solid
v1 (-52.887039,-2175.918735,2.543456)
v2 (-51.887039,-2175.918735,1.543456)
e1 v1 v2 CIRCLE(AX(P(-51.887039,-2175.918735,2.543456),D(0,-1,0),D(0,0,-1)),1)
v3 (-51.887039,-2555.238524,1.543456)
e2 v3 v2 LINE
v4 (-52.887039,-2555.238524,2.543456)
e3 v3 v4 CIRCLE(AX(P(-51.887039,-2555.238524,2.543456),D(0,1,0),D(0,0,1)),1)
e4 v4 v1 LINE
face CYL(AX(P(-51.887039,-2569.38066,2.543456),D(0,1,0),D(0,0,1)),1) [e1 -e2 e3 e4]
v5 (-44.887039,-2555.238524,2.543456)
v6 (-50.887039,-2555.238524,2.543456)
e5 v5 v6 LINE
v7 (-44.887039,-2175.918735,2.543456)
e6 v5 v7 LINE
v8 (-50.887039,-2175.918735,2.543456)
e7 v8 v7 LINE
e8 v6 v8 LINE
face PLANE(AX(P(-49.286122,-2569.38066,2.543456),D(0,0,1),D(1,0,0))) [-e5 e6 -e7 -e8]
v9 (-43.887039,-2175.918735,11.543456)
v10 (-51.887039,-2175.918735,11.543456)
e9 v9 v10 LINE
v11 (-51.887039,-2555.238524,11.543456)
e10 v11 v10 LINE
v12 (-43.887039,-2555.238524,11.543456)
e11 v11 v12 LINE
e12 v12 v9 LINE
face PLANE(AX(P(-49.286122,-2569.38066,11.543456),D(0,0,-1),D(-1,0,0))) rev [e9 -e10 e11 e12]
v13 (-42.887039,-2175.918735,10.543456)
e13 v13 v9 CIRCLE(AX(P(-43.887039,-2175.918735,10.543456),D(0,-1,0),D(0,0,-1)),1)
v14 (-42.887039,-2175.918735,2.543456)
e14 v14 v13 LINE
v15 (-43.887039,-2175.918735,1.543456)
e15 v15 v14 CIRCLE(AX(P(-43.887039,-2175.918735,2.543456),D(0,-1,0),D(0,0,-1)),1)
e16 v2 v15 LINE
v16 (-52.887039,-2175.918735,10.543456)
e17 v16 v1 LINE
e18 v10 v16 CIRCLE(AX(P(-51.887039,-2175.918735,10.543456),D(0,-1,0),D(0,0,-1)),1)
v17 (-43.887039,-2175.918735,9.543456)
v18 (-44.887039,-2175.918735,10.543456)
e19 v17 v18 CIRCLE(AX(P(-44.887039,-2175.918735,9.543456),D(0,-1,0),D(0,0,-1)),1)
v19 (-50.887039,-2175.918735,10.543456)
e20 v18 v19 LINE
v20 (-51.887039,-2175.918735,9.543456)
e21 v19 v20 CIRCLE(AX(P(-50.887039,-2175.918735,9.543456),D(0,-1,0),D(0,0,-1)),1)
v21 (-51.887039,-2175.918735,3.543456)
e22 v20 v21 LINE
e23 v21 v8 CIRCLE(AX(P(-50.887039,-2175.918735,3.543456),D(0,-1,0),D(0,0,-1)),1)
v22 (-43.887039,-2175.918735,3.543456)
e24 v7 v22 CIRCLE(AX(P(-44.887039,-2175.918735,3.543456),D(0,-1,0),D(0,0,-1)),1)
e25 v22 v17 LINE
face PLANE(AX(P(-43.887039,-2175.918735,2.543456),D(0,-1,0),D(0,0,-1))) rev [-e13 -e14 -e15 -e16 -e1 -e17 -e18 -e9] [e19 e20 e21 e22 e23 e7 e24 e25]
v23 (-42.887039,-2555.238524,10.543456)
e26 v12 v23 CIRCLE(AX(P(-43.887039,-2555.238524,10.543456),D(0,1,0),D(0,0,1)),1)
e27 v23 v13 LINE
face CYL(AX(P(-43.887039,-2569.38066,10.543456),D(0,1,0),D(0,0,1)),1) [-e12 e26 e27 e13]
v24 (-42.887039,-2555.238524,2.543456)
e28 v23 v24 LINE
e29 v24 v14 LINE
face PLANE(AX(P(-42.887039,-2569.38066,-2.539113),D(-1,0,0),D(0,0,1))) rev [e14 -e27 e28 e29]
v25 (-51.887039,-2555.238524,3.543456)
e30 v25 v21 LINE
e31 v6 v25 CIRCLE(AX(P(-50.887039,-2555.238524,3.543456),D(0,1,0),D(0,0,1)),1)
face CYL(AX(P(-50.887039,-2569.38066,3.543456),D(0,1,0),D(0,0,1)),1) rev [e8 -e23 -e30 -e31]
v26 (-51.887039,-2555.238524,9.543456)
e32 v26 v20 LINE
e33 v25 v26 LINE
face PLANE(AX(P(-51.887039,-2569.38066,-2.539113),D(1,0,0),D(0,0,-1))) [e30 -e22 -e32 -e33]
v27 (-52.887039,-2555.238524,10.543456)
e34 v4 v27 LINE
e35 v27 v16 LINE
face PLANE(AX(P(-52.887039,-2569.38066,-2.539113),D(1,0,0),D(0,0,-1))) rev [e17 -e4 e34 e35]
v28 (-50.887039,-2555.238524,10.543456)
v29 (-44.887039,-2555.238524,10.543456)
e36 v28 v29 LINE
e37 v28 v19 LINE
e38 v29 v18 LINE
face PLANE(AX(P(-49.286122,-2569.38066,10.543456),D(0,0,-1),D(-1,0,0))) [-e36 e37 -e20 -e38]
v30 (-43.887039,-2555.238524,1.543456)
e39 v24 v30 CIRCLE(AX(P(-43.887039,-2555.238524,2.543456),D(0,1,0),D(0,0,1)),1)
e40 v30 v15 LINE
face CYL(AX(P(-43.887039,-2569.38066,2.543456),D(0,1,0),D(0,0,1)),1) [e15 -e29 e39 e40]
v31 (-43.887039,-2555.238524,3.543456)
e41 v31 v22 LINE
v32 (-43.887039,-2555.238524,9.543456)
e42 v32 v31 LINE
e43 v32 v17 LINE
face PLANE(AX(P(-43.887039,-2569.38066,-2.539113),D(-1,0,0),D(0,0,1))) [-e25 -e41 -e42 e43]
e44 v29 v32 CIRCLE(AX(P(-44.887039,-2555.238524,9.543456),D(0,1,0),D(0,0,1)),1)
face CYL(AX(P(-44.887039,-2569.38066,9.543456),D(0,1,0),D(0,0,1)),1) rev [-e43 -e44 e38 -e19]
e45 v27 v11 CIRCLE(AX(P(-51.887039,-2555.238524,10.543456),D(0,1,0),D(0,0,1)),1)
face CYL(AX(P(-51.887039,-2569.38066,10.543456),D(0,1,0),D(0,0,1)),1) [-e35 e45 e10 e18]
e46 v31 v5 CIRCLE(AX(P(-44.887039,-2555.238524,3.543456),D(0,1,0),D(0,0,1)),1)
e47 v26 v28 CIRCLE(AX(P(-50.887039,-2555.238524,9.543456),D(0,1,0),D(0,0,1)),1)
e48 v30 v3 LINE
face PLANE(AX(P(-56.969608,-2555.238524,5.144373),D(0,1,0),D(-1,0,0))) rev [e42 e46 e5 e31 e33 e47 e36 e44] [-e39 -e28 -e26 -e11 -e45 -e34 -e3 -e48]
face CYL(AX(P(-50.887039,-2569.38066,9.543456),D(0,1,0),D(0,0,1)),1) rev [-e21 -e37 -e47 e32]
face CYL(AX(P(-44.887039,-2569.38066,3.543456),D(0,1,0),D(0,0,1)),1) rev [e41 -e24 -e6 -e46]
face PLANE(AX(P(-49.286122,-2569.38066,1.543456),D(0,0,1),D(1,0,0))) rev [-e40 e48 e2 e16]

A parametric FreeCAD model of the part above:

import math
import FreeCAD as App
import Part
import Sketcher
from FreeCAD import Vector

doc = App.newDocument("Part")
params = doc.addObject("Spreadsheet::Sheet", "Params")
for row, (alias, value) in enumerate([
    ("sketch1_radius", "1 mm"),
    ("sketch1_width", "8 mm"),
    ("pad1_length", "379.319789 mm"),
], start=1):
    params.set(f"A{row}", alias)
    params.set(f"B{row}", "=" + value)
    params.setAlias(f"B{row}", alias)

body = doc.addObject("PartDesign::Body", "Body")

sketch1 = body.newObject("Sketcher::SketchObject", "Sketch")
sketch1.AttachmentSupport = (doc.getObject("XZ_Plane"), [""])
sketch1.MapMode = "FlatFace"
sketch1.AttachmentOffset = App.Placement(Vector(0, 0, 2175.918735), App.Rotation())
sketch1.addGeometry([
    Part.LineSegment(Vector(-43.9, 1.5, 0), Vector(-51.9, 1.5, 0)),
    Part.ArcOfCircle(Part.Circle(Vector(-51.9, 2.5, 0), Vector(0, 0, 1), 1), math.radians(-180), math.radians(-90)),
    Part.LineSegment(Vector(-52.9, 2.5, 0), Vector(-52.9, 10.5, 0)),
    Part.ArcOfCircle(Part.Circle(Vector(-51.9, 10.5, 0), Vector(0, 0, 1), 1), math.radians(90), math.radians(180)),
    Part.LineSegment(Vector(-51.9, 11.5, 0), Vector(-43.9, 11.5, 0)),
    Part.ArcOfCircle(Part.Circle(Vector(-43.9, 10.5, 0), Vector(0, 0, 1), 1), math.radians(0), math.radians(90)),
    Part.LineSegment(Vector(-42.9, 10.5, 0), Vector(-42.9, 2.5, 0)),
    Part.ArcOfCircle(Part.Circle(Vector(-43.9, 2.5, 0), Vector(0, 0, 1), 1), math.radians(-90), math.radians(0)),
    Part.LineSegment(Vector(-50.9, 2.5, 0), Vector(-44.9, 2.5, 0)),
    Part.ArcOfCircle(Part.Circle(Vector(-44.9, 3.5, 0), Vector(0, 0, 1), 1), math.radians(-90), math.radians(0)),
    Part.LineSegment(Vector(-43.9, 3.5, 0), Vector(-43.9, 9.5, 0)),
    Part.ArcOfCircle(Part.Circle(Vector(-44.9, 9.5, 0), Vector(0, 0, 1), 1), math.radians(0), math.radians(90)),
    Part.LineSegment(Vector(-44.9, 10.5, 0), Vector(-50.9, 10.5, 0)),
    Part.ArcOfCircle(Part.Circle(Vector(-50.9, 9.5, 0), Vector(0, 0, 1), 1), math.radians(90), math.radians(180)),
    Part.LineSegment(Vector(-51.9, 9.5, 0), Vector(-51.9, 3.5, 0)),
    Part.ArcOfCircle(Part.Circle(Vector(-50.9, 3.5, 0), Vector(0, 0, 1), 1), math.radians(-180), math.radians(-90)),
], False)
sketch1.addConstraint([
    Sketcher.Constraint("Tangent", 0, 2, 1, 2),
    Sketcher.Constraint("Tangent", 1, 1, 2, 1),
    Sketcher.Constraint("Tangent", 2, 2, 3, 2),
    Sketcher.Constraint("Tangent", 3, 1, 4, 1),
    Sketcher.Constraint("Tangent", 4, 2, 5, 2),
    Sketcher.Constraint("Tangent", 5, 1, 6, 1),
    Sketcher.Constraint("Tangent", 6, 2, 7, 2),
    Sketcher.Constraint("Tangent", 7, 1, 0, 1),
    Sketcher.Constraint("Tangent", 8, 2, 9, 1),
    Sketcher.Constraint("Tangent", 9, 2, 10, 1),
    Sketcher.Constraint("Tangent", 10, 2, 11, 1),
    Sketcher.Constraint("Tangent", 11, 2, 12, 1),
    Sketcher.Constraint("Tangent", 12, 2, 13, 1),
    Sketcher.Constraint("Tangent", 13, 2, 14, 1),
    Sketcher.Constraint("Tangent", 14, 2, 15, 1),
    Sketcher.Constraint("Tangent", 15, 2, 8, 1),
    Sketcher.Constraint("Horizontal", 0),
    Sketcher.Constraint("Vertical", 2),
    Sketcher.Constraint("Horizontal", 4),
    Sketcher.Constraint("Vertical", 6),
    Sketcher.Constraint("Horizontal", 8),
    Sketcher.Constraint("Vertical", 10),
    Sketcher.Constraint("Horizontal", 12),
    Sketcher.Constraint("Vertical", 14),
    Sketcher.Constraint("Equal", 1, 3),
    Sketcher.Constraint("Equal", 3, 5),
    Sketcher.Constraint("Equal", 5, 7),
    Sketcher.Constraint("Equal", 7, 9),
    Sketcher.Constraint("Equal", 9, 11),
    Sketcher.Constraint("Equal", 11, 13),
    Sketcher.Constraint("Equal", 13, 15),
    Sketcher.Constraint("Horizontal", 6, 2, 8, 2),
    Sketcher.Constraint("Horizontal", 5, 1, 11, 2),
    Sketcher.Constraint("Vertical", 7, 1, 9, 2),
    Sketcher.Constraint("Vertical", 3, 1, 13, 2),
    Sketcher.Constraint("Equal", 4, 2),
    Sketcher.Constraint("Radius", 1, 1.0),
    Sketcher.Constraint("DistanceX", 0, 2, 0, 1, 8.0),
    Sketcher.Constraint("DistanceX", 1, 3, -1, 1, 51.887039),
    Sketcher.Constraint("DistanceY", -1, 1, 1, 3, 2.543456),
])
sketch1.setExpression("Constraints[36]", "Params.sketch1_radius")
sketch1.setExpression("Constraints[37]", "Params.sketch1_width")
pad1 = body.newObject("PartDesign::Pad", "Pad")
pad1.Profile = sketch1
pad1.setExpression("Length", "Params.pad1_length")

doc.recompute()
